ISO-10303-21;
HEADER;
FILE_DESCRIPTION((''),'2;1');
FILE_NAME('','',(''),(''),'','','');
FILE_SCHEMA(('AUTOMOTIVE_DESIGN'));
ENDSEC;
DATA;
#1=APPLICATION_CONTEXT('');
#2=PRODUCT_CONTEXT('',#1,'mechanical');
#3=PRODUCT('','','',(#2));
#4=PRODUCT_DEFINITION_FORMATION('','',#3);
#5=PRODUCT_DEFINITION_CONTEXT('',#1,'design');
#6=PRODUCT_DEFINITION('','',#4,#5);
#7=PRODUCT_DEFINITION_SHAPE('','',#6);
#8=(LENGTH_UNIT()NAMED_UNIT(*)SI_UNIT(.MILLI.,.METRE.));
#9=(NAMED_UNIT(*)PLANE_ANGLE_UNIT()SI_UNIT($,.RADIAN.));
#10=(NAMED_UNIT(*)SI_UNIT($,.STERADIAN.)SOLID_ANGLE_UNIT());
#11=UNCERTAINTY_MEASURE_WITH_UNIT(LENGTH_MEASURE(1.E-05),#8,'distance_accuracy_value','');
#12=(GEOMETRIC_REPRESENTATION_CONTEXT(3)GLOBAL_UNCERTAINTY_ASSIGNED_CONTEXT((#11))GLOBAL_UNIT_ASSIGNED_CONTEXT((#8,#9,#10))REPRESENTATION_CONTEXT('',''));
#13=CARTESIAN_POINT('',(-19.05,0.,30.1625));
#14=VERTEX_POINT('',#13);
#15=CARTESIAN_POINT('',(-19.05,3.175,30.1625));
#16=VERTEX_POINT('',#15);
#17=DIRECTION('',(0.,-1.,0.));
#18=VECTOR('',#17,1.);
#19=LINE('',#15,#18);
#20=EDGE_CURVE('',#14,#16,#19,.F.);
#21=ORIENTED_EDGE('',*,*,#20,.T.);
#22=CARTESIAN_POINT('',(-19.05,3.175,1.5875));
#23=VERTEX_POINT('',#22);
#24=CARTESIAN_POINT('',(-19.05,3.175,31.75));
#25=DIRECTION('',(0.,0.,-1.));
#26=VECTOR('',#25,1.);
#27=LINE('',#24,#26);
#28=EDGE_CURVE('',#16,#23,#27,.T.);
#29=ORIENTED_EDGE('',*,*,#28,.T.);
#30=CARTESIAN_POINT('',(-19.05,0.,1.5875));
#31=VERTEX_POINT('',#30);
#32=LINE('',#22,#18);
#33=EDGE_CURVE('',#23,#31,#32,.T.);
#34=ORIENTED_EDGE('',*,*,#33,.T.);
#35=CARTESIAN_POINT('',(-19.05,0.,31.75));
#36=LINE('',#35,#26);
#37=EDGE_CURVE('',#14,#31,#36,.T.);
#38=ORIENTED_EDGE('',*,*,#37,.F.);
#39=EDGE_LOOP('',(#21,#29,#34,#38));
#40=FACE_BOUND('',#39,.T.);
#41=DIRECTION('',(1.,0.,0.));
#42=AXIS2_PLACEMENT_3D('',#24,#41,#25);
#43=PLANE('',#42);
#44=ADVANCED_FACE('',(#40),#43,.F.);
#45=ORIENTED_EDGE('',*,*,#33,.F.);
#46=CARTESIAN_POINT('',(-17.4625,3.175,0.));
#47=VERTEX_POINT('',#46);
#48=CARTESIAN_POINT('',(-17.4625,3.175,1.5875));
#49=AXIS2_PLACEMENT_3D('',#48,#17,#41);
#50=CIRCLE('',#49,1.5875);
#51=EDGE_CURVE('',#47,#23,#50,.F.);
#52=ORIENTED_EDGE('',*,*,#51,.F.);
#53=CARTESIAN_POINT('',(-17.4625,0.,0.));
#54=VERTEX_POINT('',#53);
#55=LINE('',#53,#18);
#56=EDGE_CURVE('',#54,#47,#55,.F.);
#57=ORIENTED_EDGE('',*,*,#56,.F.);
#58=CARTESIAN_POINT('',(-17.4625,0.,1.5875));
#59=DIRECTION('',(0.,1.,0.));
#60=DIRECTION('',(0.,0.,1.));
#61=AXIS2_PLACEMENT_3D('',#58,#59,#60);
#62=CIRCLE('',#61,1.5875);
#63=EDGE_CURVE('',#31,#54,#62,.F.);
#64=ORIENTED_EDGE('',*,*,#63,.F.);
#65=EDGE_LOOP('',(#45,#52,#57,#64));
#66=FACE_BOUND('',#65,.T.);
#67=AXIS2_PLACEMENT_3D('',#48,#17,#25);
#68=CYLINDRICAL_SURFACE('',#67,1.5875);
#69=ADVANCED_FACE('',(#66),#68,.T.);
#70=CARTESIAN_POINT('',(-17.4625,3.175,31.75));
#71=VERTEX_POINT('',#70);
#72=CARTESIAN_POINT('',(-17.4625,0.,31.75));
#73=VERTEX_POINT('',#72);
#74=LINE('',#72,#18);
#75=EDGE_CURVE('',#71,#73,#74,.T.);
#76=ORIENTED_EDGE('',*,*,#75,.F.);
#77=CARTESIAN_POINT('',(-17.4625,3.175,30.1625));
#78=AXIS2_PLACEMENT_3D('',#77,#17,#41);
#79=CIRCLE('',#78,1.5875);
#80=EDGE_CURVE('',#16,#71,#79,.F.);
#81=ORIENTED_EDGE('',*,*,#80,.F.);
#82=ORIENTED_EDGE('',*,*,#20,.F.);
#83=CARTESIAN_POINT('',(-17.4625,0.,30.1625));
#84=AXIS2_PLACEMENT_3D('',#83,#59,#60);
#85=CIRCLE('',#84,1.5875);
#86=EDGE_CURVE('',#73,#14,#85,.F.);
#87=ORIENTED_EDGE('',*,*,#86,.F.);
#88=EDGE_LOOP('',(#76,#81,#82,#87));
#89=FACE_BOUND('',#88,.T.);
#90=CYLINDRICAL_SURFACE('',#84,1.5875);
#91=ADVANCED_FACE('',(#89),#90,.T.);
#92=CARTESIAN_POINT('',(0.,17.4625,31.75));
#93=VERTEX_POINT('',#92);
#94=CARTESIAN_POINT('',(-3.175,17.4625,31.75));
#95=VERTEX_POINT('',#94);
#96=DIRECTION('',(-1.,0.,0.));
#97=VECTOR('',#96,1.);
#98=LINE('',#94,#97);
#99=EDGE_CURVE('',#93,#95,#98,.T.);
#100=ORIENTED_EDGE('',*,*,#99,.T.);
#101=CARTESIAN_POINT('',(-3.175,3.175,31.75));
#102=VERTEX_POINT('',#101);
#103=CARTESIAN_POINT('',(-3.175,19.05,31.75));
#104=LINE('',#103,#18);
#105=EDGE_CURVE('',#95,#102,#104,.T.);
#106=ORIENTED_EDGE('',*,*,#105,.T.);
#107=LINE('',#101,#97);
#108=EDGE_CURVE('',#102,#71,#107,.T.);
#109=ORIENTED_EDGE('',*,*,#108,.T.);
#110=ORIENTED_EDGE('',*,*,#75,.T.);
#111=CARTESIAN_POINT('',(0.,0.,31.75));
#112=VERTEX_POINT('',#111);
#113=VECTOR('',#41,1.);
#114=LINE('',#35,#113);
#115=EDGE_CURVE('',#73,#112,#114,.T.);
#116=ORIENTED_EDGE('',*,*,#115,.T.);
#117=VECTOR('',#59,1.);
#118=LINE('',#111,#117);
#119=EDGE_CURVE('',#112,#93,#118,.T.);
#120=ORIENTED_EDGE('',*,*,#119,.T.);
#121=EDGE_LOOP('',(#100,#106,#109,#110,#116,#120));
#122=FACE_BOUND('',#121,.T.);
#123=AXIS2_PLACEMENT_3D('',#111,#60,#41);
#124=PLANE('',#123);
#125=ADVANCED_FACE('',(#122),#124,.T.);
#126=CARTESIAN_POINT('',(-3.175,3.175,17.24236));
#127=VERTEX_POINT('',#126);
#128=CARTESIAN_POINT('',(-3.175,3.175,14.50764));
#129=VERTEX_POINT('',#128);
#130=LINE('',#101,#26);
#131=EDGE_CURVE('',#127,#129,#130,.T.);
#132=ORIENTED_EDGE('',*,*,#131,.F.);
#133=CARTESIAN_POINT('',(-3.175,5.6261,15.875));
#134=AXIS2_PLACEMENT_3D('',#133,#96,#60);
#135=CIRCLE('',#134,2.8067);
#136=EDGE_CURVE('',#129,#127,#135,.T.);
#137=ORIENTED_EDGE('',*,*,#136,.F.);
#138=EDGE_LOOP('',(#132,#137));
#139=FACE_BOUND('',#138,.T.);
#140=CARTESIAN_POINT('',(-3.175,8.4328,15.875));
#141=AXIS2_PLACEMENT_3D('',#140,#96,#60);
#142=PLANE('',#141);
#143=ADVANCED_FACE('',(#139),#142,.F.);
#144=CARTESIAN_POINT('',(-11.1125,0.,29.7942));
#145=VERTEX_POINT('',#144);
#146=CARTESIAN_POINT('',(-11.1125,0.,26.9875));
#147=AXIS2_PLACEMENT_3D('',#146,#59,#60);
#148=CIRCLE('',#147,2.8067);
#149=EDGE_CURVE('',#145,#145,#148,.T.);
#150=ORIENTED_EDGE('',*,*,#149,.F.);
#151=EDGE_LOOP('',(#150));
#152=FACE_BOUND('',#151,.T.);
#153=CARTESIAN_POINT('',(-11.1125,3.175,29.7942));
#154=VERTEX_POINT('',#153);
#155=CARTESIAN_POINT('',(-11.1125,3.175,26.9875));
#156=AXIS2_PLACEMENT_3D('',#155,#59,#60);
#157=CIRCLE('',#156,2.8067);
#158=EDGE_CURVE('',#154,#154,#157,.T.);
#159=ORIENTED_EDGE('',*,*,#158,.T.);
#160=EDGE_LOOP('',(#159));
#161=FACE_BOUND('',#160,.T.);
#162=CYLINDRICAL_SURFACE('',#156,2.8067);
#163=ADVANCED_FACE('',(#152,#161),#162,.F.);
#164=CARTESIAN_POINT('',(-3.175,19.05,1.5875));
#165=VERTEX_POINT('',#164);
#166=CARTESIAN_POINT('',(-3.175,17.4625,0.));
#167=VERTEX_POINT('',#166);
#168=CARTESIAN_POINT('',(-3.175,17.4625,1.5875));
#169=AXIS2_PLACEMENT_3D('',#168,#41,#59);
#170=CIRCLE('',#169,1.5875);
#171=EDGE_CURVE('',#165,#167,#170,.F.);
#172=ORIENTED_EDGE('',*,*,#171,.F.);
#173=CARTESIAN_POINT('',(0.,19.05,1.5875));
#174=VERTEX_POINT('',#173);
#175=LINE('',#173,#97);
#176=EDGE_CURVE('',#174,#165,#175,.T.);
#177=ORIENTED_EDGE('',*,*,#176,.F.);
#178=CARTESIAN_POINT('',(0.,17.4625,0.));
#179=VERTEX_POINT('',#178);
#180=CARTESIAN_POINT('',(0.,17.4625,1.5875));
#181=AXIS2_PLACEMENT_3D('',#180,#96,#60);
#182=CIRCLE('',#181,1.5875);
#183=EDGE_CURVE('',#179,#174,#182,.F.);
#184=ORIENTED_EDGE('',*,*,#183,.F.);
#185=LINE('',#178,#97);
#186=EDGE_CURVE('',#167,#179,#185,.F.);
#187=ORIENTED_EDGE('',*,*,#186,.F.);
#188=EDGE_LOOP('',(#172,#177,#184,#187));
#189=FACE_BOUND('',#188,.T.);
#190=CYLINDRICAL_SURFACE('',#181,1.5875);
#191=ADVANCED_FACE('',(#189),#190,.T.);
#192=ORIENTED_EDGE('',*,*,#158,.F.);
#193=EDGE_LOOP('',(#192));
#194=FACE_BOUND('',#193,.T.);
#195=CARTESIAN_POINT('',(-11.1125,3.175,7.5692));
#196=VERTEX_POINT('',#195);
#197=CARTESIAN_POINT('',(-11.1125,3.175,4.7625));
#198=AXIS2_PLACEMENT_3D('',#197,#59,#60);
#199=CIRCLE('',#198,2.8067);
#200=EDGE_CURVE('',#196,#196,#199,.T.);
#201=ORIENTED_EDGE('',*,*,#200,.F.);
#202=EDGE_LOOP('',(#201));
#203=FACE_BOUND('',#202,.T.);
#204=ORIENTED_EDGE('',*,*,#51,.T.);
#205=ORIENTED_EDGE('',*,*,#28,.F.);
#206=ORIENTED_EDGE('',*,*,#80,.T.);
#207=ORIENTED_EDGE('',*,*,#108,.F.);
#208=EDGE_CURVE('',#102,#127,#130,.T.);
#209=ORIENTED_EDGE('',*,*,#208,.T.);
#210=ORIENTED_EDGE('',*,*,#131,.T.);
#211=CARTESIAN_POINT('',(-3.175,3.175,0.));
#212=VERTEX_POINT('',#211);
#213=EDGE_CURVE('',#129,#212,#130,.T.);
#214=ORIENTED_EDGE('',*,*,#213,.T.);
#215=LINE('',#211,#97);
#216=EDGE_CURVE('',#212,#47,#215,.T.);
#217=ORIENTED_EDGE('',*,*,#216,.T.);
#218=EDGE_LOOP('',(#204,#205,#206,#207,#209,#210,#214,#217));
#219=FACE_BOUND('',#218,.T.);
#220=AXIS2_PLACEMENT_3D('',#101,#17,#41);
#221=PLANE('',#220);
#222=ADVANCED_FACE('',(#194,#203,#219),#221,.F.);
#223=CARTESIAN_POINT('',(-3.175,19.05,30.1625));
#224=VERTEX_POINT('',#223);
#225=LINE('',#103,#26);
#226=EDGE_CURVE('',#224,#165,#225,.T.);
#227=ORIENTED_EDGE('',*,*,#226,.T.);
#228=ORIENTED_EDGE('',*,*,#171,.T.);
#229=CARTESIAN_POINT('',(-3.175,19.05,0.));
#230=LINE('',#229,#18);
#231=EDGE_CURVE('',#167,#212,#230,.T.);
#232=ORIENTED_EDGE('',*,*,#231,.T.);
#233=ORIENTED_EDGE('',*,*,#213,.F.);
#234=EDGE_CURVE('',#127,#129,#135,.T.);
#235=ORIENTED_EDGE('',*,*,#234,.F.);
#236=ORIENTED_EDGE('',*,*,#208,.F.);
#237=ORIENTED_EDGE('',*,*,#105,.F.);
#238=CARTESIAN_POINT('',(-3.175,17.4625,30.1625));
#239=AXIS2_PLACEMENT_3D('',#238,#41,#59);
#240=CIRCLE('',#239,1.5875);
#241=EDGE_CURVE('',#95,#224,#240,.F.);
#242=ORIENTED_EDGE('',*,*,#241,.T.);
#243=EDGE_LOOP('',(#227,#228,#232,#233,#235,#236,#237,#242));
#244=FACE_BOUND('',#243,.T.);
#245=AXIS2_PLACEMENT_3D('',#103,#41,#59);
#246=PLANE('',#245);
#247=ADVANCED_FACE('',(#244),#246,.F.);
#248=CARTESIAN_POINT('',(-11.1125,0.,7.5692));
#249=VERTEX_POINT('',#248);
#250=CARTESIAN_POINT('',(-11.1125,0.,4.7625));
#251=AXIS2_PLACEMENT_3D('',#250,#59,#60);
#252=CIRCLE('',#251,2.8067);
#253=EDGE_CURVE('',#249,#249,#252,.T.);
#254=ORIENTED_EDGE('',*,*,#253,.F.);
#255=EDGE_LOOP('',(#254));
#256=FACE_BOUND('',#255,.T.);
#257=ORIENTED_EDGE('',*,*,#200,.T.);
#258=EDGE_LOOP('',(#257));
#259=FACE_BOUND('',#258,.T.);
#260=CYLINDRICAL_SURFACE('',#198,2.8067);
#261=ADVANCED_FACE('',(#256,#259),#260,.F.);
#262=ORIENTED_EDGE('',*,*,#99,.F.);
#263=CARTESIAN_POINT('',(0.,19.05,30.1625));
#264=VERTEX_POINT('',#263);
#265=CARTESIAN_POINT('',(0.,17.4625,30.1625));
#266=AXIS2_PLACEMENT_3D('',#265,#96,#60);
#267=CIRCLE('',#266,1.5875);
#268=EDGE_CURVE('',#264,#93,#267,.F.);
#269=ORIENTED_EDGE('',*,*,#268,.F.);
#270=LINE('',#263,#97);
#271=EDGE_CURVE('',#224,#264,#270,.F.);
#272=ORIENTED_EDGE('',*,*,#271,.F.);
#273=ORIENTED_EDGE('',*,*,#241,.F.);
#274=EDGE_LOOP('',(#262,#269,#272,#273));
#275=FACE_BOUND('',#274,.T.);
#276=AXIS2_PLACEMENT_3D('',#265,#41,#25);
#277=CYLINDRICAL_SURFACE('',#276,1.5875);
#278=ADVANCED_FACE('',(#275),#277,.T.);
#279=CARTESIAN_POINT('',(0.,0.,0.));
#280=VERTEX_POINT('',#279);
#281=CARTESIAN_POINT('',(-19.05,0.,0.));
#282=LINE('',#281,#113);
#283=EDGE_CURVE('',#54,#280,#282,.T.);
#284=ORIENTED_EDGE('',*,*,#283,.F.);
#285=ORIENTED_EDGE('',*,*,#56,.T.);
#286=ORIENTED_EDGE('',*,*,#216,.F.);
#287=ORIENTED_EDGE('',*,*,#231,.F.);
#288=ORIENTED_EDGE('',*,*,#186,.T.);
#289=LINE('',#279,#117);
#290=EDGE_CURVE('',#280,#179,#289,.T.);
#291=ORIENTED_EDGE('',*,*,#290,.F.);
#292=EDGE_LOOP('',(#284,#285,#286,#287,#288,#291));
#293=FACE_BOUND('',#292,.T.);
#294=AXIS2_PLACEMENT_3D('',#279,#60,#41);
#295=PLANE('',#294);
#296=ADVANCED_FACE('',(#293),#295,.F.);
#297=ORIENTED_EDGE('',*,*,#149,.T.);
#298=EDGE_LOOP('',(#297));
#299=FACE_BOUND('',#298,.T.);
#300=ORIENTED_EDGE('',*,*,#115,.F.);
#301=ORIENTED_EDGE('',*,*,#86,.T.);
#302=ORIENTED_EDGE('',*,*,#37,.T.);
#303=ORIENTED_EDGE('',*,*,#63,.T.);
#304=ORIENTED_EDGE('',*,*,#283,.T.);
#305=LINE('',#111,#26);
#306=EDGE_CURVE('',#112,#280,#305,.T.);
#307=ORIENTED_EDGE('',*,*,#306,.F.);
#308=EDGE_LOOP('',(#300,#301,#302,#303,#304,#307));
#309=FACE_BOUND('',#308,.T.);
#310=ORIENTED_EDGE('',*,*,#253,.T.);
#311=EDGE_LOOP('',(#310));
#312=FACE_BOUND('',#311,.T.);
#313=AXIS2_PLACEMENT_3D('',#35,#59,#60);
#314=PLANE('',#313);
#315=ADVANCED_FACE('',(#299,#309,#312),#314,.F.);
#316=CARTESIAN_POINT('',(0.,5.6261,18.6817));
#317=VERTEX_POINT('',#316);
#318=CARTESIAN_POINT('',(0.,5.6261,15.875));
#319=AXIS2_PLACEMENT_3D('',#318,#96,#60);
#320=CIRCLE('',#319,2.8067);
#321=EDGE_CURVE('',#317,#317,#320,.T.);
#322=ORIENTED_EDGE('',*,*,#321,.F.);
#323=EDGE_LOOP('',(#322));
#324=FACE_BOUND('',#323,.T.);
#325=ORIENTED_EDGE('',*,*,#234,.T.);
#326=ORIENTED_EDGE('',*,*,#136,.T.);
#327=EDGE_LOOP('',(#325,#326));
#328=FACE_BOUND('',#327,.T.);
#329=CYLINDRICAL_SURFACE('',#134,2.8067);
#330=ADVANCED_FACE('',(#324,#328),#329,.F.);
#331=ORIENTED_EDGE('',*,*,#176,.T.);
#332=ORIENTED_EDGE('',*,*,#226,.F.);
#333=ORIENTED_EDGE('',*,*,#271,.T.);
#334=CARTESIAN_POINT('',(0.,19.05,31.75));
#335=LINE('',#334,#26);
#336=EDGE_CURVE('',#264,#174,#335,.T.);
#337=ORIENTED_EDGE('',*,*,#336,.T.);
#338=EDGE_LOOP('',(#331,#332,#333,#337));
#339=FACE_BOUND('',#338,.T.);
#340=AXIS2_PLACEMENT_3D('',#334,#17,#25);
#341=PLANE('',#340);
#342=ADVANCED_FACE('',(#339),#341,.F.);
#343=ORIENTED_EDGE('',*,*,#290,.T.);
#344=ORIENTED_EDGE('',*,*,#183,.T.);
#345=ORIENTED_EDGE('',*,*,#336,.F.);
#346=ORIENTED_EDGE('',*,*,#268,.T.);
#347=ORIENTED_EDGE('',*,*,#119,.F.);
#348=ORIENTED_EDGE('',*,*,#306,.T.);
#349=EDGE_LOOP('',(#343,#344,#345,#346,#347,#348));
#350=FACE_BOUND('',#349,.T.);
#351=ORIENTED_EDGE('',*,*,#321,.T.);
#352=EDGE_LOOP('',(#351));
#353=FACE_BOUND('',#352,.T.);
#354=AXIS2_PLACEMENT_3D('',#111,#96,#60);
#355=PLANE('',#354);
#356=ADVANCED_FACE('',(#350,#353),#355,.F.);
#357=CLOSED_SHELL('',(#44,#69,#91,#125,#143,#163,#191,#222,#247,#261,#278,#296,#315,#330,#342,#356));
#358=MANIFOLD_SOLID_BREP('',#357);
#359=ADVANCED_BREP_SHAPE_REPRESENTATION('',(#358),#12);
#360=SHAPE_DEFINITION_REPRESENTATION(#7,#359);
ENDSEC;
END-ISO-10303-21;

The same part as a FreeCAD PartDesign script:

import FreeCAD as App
import Part
import Sketcher

V = App.Vector
Q = App.Units.Quantity


def edges_at(feature, points):
    """Names of the edges that pass closest to the given points."""
    edges = feature.Shape.Edges
    near = lambda p: min(range(len(edges)), key=lambda i: edges[i].distToShape(Part.Vertex(*p))[0])
    return sorted({f"Edge{near(p) + 1}" for p in points})


def add_polygon(sketch, points):
    """Adds a closed chain of lines whose ends are joined by coincident constraints."""
    first, n = sketch.GeometryCount, len(points)
    for a, b in zip(points, points[1:] + points[:1]):
        sketch.addGeometry(Part.LineSegment(App.Vector(*a, 0), App.Vector(*b, 0)), False)
    for i in range(n):
        sketch.addConstraint(Sketcher.Constraint("Coincident", first + i, 2, first + (i + 1) % n, 1))

doc = App.newDocument("Part")
body = doc.addObject("PartDesign::Body", "Body")

# Sketch on XY plane
sketch1 = body.newObject("Sketcher::SketchObject", "Sketch")
sketch1.AttachmentSupport = (doc.getObject("XY_Plane"), [""])
sketch1.MapMode = "FlatFace"
add_polygon(sketch1, [(0, 0), (0, 19.1), (-3.2, 19.1), (-3.2, 3.2), (-19.1, 3.2), (-19.1, 0)])  # lines 0-5
sketch1.addConstraint([
    Sketcher.Constraint("Vertical", 0),
    Sketcher.Constraint("Horizontal", 1),
    Sketcher.Constraint("Vertical", 2),
    Sketcher.Constraint("Horizontal", 3),
    Sketcher.Constraint("Vertical", 4),
    Sketcher.Constraint("Horizontal", 5),
    Sketcher.Constraint("Coincident", 5, 2, -1, 1),
    Sketcher.Constraint("Equal", 5, 0),
    Sketcher.Constraint("Equal", 3, 2),
    Sketcher.Constraint("DistanceX", 5, 1, 5, 2, Q("0.75 in")),
    Sketcher.Constraint("DistanceX", 1, 2, 1, 1, Q("0.125 in")),
])
pad1 = body.newObject("PartDesign::Pad", "Pad")
pad1.Profile = sketch1
pad1.Length = Q("1.25 in")

# Sketch on XZ plane
sketch2 = body.newObject("Sketcher::SketchObject", "Sketch001")
sketch2.AttachmentSupport = (doc.getObject("XZ_Plane"), [""])
sketch2.MapMode = "FlatFace"
sketch2.AttachmentOffset = App.Placement(V(0, 0, -0.125 * 25.4), App.Rotation())
sketch2.addGeometry([
    Part.Circle(V(-11.1, 27, 0), V(0, 0, 1), 2.8),
    Part.Circle(V(-11.1, 4.8, 0), V(0, 0, 1), 2.8),
], False)
sketch2.addConstraint([
    Sketcher.Constraint("Equal", 0, 1),
    Sketcher.Constraint("Vertical", 0, 3, 1, 3),
    Sketcher.Constraint("Diameter", 0, Q("0.221 in")),
    Sketcher.Constraint("DistanceX", 0, 3, -1, 1, Q("0.4375 in")),
    Sketcher.Constraint("DistanceY", -1, 1, 0, 3, Q("1.0625 in")),
    Sketcher.Constraint("DistanceY", -1, 1, 1, 3, Q("0.1875 in")),
])
doc.recompute()
hole = body.newObject("PartDesign::Hole", "Hole")
hole.Profile = sketch2
hole.ThreadType = "None"
hole.Diameter = Q("0.221 in")
hole.DepthType = "Dimension"
hole.Depth = Q("1 in")
hole.DrillPoint = "Angled"
hole.DrillPointAngle = 118
hole.Reversed = True

# Sketch on XZ plane
sketch3 = body.newObject("Sketcher::SketchObject", "Sketch002")
sketch3.AttachmentSupport = (doc.getObject("XZ_Plane"), [""])
sketch3.MapMode = "FlatFace"
sketch3.AttachmentOffset = App.Placement(V(0, 0, -0.2215 * 25.4), App.Rotation())
add_polygon(sketch3, [(23.9, 15.9), (-3.2, 15.9), (-3.2, 18.7), (22.2, 18.7)])  # lines 0-3
sketch3.addGeometry(Part.LineSegment(V(-3.2, 15.9, 0), V(23.9, 15.9, 0)), True)  # axis
sketch3.addConstraint([
    Sketcher.Constraint("Horizontal", 0),
    Sketcher.Constraint("Vertical", 1),
    Sketcher.Constraint("Horizontal", 2),
    Sketcher.Constraint("Horizontal", 4),
    Sketcher.Constraint("Coincident", 4, 1, 0, 2),
    Sketcher.Constraint("Equal", 0, 4),
    Sketcher.Constraint("DistanceX", 2, 1, 2, 2, Q("1 in")),
    Sketcher.Constraint("Angle", 3, Q("-59 deg")),
    Sketcher.Constraint("DistanceY", 1, 1, 1, 2, Q("0.1105 in")),
    Sketcher.Constraint("DistanceX", 0, 2, -1, 1, Q("0.125 in")),
    Sketcher.Constraint("DistanceY", -1, 1, 0, 2, Q("0.625 in")),
])
groove = body.newObject("PartDesign::Groove", "Groove")
groove.Profile = sketch3
groove.ReferenceAxis = (sketch3, ["Axis0"])
groove.Angle = 360
doc.recompute()

fillet = body.newObject("PartDesign::Fillet", "Fillet")
fillet.Base = (groove, edges_at(groove, [
    (-1.587, 19.05, 31.75),
    (-19.05, 1.587, 31.75),
    (-19.05, 1.587, 0),
    (-1.587, 19.05, 0),
]))
fillet.Radius = Q("0.0625 in")

doc.recompute()
